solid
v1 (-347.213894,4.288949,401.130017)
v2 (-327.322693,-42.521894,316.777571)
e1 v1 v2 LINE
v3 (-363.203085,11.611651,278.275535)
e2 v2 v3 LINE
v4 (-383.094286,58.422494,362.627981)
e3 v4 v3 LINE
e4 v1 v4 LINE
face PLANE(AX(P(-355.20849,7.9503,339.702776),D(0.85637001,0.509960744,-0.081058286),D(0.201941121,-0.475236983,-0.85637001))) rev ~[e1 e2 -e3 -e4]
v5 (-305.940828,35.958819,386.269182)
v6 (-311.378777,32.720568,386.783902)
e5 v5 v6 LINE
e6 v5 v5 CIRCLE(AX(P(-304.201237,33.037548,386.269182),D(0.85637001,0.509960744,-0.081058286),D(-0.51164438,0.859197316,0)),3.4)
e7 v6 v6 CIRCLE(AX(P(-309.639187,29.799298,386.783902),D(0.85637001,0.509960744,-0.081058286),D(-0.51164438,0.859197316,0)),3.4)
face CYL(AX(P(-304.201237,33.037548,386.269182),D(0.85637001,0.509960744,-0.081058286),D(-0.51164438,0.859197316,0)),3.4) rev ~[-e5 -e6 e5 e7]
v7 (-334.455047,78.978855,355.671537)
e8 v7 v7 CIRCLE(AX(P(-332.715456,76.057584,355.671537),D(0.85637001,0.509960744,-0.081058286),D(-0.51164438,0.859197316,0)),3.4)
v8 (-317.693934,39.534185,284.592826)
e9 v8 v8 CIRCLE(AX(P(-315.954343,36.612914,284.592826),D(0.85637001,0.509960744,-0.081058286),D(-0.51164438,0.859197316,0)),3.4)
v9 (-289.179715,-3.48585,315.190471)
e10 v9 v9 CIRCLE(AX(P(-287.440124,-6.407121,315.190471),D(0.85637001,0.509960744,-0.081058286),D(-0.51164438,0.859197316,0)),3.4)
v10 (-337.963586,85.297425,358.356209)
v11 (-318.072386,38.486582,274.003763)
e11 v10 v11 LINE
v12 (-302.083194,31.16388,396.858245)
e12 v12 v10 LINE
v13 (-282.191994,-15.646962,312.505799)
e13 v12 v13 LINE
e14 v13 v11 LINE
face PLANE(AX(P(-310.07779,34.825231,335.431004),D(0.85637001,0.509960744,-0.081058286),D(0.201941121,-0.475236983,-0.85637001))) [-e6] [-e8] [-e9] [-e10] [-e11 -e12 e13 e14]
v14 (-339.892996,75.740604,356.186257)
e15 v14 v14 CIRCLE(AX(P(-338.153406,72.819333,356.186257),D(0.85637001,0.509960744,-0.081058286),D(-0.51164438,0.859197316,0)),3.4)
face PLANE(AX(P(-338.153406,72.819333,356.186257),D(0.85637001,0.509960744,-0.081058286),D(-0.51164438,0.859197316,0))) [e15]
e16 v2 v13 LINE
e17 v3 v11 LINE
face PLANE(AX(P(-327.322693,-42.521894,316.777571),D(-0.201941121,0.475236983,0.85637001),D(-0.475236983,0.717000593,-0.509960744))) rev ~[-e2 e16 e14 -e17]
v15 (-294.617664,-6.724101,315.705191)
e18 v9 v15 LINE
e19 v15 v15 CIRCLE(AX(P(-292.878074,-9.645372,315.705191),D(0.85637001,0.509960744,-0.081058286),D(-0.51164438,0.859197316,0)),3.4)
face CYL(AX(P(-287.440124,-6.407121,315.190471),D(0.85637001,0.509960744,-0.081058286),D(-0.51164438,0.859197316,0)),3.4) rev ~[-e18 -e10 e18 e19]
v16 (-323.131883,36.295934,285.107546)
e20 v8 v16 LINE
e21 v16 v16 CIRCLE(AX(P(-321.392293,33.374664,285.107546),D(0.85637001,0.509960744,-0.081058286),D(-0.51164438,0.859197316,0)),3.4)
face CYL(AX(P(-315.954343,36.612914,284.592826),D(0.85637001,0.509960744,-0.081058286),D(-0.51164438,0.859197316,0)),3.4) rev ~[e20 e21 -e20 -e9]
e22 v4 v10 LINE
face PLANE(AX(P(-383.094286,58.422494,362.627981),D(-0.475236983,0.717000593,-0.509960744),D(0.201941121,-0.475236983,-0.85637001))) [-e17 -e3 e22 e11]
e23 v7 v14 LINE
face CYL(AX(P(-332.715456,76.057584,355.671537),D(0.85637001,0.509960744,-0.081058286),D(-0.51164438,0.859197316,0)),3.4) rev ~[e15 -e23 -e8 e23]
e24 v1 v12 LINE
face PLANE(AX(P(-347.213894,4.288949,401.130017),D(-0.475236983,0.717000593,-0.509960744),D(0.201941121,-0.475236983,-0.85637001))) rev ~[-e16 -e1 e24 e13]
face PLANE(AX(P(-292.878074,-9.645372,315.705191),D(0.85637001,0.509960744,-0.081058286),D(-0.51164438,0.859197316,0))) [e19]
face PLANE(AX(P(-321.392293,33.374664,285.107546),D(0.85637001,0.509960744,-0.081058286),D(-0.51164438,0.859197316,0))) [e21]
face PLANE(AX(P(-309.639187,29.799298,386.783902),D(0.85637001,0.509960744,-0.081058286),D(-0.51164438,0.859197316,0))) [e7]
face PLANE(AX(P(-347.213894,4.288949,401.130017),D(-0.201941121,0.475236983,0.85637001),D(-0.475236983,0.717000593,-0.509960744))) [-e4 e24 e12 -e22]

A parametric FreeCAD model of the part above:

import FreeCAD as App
import Part
import Sketcher
Q = App.Units.Quantity

doc = App.newDocument("Part")
body = doc.addObject("PartDesign::Body", "Body")

# Sketch on an angled plane
sketch1 = doc.addObject("Sketcher::SketchObject", "Sketch")
body.addObject(sketch1)
sketch1.Placement = App.Placement(App.Vector(-280.607859, -167.099491, 26.560473), App.Rotation(App.Vector(0.201941121, -0.475236983, -0.85637001), App.Vector(-0.475236983, 0.717000593, -0.509960744), App.Vector(0.85637001, 0.509960744, -0.081058286), "ZXY"))
sketch1.addGeometry(Part.LineSegment(App.Vector(-416, 39, 0), App.Vector(-416, -36, 0)), False)
sketch1.addGeometry(Part.LineSegment(App.Vector(-416, -36, 0), App.Vector(-317, -36, 0)), False)
sketch1.addGeometry(Part.LineSegment(App.Vector(-317, -36, 0), App.Vector(-317, 39, 0)), False)
sketch1.addGeometry(Part.LineSegment(App.Vector(-317, 39, 0), App.Vector(-416, 39, 0)), False)
sketch1.addConstraint(Sketcher.Constraint("Coincident", 0, 2, 1, 1))
sketch1.addConstraint(Sketcher.Constraint("Coincident", 1, 2, 2, 1))
sketch1.addConstraint(Sketcher.Constraint("Coincident", 2, 2, 3, 1))
sketch1.addConstraint(Sketcher.Constraint("Coincident", 3, 2, 0, 1))
sketch1.addConstraint(Sketcher.Constraint("Vertical", 0))
sketch1.addConstraint(Sketcher.Constraint("Horizontal", 1))
sketch1.addConstraint(Sketcher.Constraint("Vertical", 2))
sketch1.addConstraint(Sketcher.Constraint("Horizontal", 3))
sketch1.addConstraint(Sketcher.Constraint("DistanceX", 1, 1, 1, 2, Q("98.5 mm")))
sketch1.addConstraint(Sketcher.Constraint("DistanceY", 0, 2, 0, 1, Q("75.5 mm")))
sketch1.addConstraint(Sketcher.Constraint("DistanceY", 0, 2, -1, 1, Q("36.4765 mm")))
sketch1.addConstraint(Sketcher.Constraint("DistanceX", 0, 2, -1, 1, Q("415.670747 mm")))
pad1 = doc.addObject("PartDesign::Pad", "Pad")
body.addObject(pad1)
pad1.Profile = sketch1
pad1.Length = 52.7

# Sketch on an angled plane
sketch2 = doc.addObject("Sketcher::SketchObject", "Sketch001")
body.addObject(sketch2)
sketch2.Placement = App.Placement(App.Vector(-235.477159, -140.224559, 22.288701), App.Rotation(App.Vector(0.201941121, -0.475236983, -0.85637001), App.Vector(-0.475236983, 0.717000593, -0.509960744), App.Vector(0.85637001, 0.509960744, -0.081058286), "ZXY"))
sketch2.addGeometry(Part.Circle(App.Vector(-407.9, 31.3, 0), App.Vector(0, 0, 1), 3.4), False)
sketch2.addGeometry(Part.Circle(App.Vector(-407.9, -28.7, 0), App.Vector(0, 0, 1), 3.4), False)
sketch2.addGeometry(Part.Circle(App.Vector(-324.9, 31.3, 0), App.Vector(0, 0, 1), 3.4), False)
sketch2.addGeometry(Part.Circle(App.Vector(-324.9, -28.7, 0), App.Vector(0, 0, 1), 3.4), False)
sketch2.addConstraint(Sketcher.Constraint("Equal", 0, 1))
sketch2.addConstraint(Sketcher.Constraint("Equal", 1, 2))
sketch2.addConstraint(Sketcher.Constraint("Equal", 2, 3))
sketch2.addConstraint(Sketcher.Constraint("Horizontal", 0, 3, 2, 3))
sketch2.addConstraint(Sketcher.Constraint("Horizontal", 1, 3, 3, 3))
sketch2.addConstraint(Sketcher.Constraint("Vertical", 0, 3, 1, 3))
sketch2.addConstraint(Sketcher.Constraint("Vertical", 2, 3, 3, 3))
sketch2.addConstraint(Sketcher.Constraint("Diameter", 0, Q("6.8 mm")))
sketch2.addConstraint(Sketcher.Constraint("DistanceY", 1, 3, 0, 3, Q("60 mm")))
sketch2.addConstraint(Sketcher.Constraint("DistanceX", 0, 3, 2, 3, Q("83 mm")))
sketch2.addConstraint(Sketcher.Constraint("DistanceY", -1, 1, 0, 3, Q("31.2735 mm")))
sketch2.addConstraint(Sketcher.Constraint("DistanceX", 0, 3, -1, 1, Q("407.920747 mm")))
pocket1 = doc.addObject("PartDesign::Pocket", "Pocket")
body.addObject(pocket1)
pocket1.Profile = sketch2
pocket1.Length = 6.35

doc.recompute()
